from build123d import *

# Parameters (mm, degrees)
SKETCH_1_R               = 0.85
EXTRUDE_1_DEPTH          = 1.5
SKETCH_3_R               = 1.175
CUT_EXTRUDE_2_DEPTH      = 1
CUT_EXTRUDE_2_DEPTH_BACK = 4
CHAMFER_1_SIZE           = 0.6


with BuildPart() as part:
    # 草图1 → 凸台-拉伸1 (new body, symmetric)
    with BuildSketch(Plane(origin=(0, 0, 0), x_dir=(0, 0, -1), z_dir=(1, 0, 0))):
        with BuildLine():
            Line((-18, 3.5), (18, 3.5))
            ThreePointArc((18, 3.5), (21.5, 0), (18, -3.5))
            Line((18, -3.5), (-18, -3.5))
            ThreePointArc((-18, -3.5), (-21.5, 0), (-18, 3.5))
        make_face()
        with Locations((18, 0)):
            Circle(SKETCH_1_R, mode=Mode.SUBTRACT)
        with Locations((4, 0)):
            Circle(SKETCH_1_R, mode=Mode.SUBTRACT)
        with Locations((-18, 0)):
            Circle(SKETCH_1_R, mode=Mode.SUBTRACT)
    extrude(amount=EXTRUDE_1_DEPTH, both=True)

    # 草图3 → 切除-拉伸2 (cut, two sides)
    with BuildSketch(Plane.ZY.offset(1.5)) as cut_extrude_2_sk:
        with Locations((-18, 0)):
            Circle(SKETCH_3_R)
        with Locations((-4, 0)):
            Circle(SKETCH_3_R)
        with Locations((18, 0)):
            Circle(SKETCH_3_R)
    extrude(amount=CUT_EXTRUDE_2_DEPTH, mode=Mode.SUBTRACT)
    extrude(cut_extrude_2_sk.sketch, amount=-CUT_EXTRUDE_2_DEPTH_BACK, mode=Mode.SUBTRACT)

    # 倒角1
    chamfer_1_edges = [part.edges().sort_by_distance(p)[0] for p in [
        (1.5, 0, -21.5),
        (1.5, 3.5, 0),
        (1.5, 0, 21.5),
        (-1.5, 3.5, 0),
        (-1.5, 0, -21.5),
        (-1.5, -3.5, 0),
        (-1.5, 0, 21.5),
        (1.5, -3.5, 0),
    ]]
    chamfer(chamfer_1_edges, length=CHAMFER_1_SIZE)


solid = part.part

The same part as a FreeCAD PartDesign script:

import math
import FreeCAD as App
import Part
import Sketcher

V = App.Vector
Q = App.Units.Quantity


def edges_at(feature, points):
    """Names of the edges that pass closest to the given points."""
    edges = feature.Shape.Edges
    near = lambda p: min(range(len(edges)), key=lambda i: edges[i].distToShape(Part.Vertex(*p))[0])
    return sorted({f"Edge{near(p) + 1}" for p in points})

doc = App.newDocument("Part")
body = doc.addObject("PartDesign::Body", "Body")

# Sketch on YZ plane
sketch1 = doc.addObject("Sketcher::SketchObject", "Sketch")
body.addObject(sketch1)
sketch1.AttachmentSupport = (doc.YZ_Plane, [""])
sketch1.MapMode = "FlatFace"
sketch1.addGeometry([
    Part.LineSegment(V(3.5, -18, 0), V(3.5, 18, 0)),  # 0
    Part.ArcOfCircle(Part.Circle(V(0, 18, 0), V(0, 0, 1), 3.5), math.radians(0), math.radians(180)),  # 1
    Part.LineSegment(V(-3.5, 18, 0), V(-3.5, -18, 0)),  # 2
    Part.ArcOfCircle(Part.Circle(V(0, -18, 0), V(0, 0, 1), 3.5), math.radians(180), math.radians(360)),  # 3
    Part.Circle(V(0, -18, 0), V(0, 0, 1), 0.85),  # 4
    Part.Circle(V(0, -4, 0), V(0, 0, 1), 0.85),  # 5
    Part.Circle(V(0, 18, 0), V(0, 0, 1), 0.85),  # 6
], False)
sketch1.addConstraint([
    Sketcher.Constraint("Tangent", 0, 2, 1, 1),
    Sketcher.Constraint("Tangent", 1, 2, 2, 1),
    Sketcher.Constraint("Tangent", 2, 2, 3, 1),
    Sketcher.Constraint("Tangent", 3, 2, 0, 1),
    Sketcher.Constraint("Vertical", 0),
    Sketcher.Constraint("Vertical", 2),
    Sketcher.Constraint("Coincident", 4, 3, 3, 3),
    Sketcher.Constraint("Coincident", 6, 3, 1, 3),
    Sketcher.Constraint("Equal", 4, 5),
    Sketcher.Constraint("Equal", 5, 6),
    Sketcher.Constraint("Symmetric", 1, 3, 3, 3, -1, 1),
    Sketcher.Constraint("PointOnObject", 5, 3, -2),
    Sketcher.Constraint("Diameter", 4, Q("1.7 mm")),
    Sketcher.Constraint("Radius", 1, Q("3.5 mm")),
    Sketcher.Constraint("DistanceY", 0, 1, 0, 2, Q("36 mm")),
    Sketcher.Constraint("DistanceY", 5, 3, -1, 1, Q("4 mm")),
])
pad1 = doc.addObject("PartDesign::Pad", "Pad")
body.addObject(pad1)
pad1.Profile = sketch1
pad1.Length = 3
pad1.Midplane = True

# Sketch on YZ plane
sketch2 = doc.addObject("Sketcher::SketchObject", "Sketch001")
body.addObject(sketch2)
sketch2.AttachmentSupport = (doc.YZ_Plane, [""])
sketch2.MapMode = "FlatFace"
sketch2.AttachmentOffset = App.Placement(V(0, 0, -1.5), App.Rotation())
sketch2.addGeometry([
    Part.Circle(V(0, -18, 0), V(0, 0, 1), 1.175),
    Part.Circle(V(0, -4, 0), V(0, 0, 1), 1.175),
    Part.Circle(V(0, 18, 0), V(0, 0, 1), 1.175),
], False)
sketch2.addConstraint([
    Sketcher.Constraint("Equal", 0, 1),
    Sketcher.Constraint("Equal", 1, 2),
    Sketcher.Constraint("Symmetric", 0, 3, 2, 3, -1, 1),
    Sketcher.Constraint("PointOnObject", 0, 3, -2),
    Sketcher.Constraint("PointOnObject", 1, 3, -2),
    Sketcher.Constraint("Diameter", 0, Q("2.35 mm")),
    Sketcher.Constraint("DistanceY", 0, 3, -1, 1, Q("18 mm")),
    Sketcher.Constraint("DistanceY", 1, 3, -1, 1, Q("4 mm")),
])
pocket1 = doc.addObject("PartDesign::Pocket", "Pocket")
body.addObject(pocket1)
pocket1.Profile = sketch2
pocket1.Type = "ThroughAll"
pocket1.Midplane = True
doc.recompute()

chamfer = doc.addObject("PartDesign::Chamfer", "Chamfer")
body.addObject(chamfer)
chamfer.Base = (pocket1, edges_at(pocket1, [
    (1.5, 0, -21.5),
    (1.5, 3.5, 0),
    (1.5, 0, 21.5),
    (-1.5, 3.5, 0),
    (-1.5, 0, -21.5),
    (-1.5, -3.5, 0),
    (-1.5, 0, 21.5),
    (1.5, -3.5, 0),
]))
chamfer.Size = 0.6

doc.recompute()
